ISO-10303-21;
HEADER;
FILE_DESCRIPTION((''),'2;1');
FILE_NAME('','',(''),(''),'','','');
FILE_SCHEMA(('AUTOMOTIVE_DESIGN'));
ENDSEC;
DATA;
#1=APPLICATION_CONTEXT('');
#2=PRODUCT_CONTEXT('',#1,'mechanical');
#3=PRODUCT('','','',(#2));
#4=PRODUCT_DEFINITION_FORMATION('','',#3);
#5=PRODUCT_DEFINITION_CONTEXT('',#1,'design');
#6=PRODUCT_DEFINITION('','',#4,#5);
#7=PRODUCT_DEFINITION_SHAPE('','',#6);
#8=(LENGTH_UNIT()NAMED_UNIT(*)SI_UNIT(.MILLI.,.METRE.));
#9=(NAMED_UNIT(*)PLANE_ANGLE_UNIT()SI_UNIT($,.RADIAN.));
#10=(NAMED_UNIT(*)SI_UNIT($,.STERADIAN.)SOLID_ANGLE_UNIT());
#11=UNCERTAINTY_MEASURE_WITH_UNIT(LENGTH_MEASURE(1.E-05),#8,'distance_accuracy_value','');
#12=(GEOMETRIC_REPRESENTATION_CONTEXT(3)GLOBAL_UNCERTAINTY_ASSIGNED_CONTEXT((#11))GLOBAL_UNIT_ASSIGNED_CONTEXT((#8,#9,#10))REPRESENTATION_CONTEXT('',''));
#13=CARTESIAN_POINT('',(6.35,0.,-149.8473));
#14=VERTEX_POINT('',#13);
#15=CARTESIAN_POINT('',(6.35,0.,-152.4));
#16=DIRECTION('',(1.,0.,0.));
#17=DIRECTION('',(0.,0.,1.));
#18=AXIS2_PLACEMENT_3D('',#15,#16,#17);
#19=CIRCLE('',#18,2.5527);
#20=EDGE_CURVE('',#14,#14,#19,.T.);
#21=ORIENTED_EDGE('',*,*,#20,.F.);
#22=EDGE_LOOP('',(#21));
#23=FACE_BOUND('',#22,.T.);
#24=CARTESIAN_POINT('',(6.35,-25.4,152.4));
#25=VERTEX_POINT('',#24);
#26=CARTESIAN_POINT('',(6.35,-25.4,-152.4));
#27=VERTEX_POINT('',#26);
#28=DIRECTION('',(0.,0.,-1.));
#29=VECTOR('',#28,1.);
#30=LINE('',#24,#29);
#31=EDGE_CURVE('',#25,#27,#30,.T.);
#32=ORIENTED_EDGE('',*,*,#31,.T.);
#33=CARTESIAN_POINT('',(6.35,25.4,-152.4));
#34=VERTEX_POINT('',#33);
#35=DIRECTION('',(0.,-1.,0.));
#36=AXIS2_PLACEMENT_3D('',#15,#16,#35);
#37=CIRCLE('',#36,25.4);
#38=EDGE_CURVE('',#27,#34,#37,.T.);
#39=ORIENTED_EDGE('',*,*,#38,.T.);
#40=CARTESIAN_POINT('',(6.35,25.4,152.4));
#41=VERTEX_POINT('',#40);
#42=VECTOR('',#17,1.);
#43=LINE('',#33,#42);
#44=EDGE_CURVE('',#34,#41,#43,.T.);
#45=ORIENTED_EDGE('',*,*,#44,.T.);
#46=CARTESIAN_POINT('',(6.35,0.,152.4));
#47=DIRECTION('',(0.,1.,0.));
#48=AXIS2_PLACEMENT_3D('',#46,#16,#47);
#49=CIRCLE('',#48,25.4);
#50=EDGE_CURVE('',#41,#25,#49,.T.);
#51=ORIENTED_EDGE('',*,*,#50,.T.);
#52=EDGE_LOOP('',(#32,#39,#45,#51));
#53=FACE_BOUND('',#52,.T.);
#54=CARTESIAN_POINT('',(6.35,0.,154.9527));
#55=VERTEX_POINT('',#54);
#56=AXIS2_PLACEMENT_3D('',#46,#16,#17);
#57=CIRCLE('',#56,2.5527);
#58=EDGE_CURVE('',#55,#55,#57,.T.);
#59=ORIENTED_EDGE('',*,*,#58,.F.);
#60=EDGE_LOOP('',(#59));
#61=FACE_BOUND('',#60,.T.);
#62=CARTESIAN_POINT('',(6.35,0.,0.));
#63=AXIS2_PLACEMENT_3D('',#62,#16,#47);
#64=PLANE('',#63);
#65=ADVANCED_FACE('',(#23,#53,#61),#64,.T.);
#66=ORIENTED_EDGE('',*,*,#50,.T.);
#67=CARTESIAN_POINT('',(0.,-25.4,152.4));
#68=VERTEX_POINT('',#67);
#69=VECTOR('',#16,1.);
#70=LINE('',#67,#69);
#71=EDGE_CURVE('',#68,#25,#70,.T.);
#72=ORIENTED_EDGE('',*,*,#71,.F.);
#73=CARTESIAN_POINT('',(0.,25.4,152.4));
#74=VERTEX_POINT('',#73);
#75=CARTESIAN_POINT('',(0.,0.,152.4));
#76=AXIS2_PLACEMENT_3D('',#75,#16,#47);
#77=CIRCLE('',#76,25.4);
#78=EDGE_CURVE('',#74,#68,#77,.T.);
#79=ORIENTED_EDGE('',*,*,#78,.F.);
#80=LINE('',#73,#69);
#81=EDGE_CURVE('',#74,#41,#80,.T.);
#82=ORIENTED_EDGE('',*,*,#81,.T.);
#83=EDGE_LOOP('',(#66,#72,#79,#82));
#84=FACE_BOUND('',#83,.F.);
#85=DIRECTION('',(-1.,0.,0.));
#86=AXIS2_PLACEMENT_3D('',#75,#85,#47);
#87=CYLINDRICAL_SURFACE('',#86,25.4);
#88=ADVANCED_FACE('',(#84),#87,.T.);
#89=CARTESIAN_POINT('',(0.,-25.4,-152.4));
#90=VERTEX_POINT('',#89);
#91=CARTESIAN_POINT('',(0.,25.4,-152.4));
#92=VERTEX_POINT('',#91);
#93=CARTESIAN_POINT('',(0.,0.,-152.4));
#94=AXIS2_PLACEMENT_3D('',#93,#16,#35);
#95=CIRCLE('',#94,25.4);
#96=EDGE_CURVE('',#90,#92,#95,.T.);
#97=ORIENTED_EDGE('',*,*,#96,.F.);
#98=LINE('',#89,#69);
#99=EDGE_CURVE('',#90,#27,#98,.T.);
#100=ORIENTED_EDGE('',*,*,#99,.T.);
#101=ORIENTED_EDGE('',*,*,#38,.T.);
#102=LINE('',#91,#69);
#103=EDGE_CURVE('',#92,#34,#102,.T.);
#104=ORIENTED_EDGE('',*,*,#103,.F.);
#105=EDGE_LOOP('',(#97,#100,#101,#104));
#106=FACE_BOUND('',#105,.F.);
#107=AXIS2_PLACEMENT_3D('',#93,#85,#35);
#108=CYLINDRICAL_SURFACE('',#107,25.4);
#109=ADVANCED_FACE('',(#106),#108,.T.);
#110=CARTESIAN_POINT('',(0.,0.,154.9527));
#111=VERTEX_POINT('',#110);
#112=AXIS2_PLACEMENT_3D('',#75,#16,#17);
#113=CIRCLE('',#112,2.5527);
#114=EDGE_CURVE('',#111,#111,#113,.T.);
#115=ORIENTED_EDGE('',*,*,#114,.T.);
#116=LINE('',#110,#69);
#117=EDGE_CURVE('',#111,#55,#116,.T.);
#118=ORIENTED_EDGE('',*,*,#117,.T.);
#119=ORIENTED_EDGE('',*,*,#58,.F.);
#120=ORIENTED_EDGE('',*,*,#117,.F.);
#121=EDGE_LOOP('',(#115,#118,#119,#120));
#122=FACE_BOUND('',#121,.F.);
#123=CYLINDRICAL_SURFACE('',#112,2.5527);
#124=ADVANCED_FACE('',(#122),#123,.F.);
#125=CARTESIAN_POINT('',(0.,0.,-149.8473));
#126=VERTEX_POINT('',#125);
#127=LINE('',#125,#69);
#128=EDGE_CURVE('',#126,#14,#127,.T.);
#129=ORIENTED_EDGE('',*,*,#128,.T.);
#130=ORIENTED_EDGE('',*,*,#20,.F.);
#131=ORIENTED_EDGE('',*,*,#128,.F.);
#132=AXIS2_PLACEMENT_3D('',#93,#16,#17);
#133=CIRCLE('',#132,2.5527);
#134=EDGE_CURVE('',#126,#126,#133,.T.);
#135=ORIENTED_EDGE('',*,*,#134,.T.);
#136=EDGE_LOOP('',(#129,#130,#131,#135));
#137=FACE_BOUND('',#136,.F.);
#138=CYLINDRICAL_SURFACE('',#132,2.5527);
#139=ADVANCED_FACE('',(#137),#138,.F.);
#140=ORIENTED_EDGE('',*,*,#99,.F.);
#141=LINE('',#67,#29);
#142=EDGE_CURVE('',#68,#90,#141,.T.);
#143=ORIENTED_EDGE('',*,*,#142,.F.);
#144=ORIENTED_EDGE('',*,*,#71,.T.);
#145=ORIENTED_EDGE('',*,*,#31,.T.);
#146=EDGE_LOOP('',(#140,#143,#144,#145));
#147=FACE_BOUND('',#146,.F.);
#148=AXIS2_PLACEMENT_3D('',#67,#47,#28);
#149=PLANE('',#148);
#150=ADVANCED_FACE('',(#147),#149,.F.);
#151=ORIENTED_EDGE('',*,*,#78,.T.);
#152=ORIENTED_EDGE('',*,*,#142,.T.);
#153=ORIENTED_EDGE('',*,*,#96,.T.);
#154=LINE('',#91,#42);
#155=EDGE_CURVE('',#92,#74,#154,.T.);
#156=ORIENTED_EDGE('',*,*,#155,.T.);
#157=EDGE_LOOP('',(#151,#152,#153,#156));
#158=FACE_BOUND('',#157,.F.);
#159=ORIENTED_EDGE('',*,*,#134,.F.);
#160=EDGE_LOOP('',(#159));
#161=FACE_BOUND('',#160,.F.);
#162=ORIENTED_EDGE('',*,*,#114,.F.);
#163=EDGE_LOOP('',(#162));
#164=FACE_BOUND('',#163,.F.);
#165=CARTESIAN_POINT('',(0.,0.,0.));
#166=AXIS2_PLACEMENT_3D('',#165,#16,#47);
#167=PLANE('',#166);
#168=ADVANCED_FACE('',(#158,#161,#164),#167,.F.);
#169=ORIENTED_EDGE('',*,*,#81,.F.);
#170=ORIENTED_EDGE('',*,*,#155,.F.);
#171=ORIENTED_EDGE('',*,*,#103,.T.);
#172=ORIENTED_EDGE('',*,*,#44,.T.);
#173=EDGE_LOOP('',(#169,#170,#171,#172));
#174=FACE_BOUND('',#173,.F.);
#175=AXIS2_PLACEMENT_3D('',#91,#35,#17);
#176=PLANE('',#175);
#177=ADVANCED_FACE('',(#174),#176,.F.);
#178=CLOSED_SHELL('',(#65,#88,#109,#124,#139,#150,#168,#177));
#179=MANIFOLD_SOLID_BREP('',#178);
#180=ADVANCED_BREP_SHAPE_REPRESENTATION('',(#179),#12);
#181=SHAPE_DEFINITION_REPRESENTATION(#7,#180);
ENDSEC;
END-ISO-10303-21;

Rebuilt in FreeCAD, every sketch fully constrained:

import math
import FreeCAD as App
import Part
import Sketcher
Q = App.Units.Quantity

doc = App.newDocument("Part")
body = doc.addObject("PartDesign::Body", "Body")

# Sketch on YZ plane
sketch1 = doc.addObject("Sketcher::SketchObject", "Sketch")
body.addObject(sketch1)
sketch1.AttachmentSupport = (doc.YZ_Plane, [""])
sketch1.MapMode = "FlatFace"
sketch1.addGeometry(Part.ArcOfCircle(Part.Circle(App.Vector(0, -152, 0), App.Vector(0, 0, 1), 25), math.radians(180), math.radians(360)), False)
sketch1.addGeometry(Part.LineSegment(App.Vector(25, -152, 0), App.Vector(25, 152, 0)), False)
sketch1.addGeometry(Part.ArcOfCircle(Part.Circle(App.Vector(0, 152, 0), App.Vector(0, 0, 1), 25), math.radians(0), math.radians(180)), False)
sketch1.addGeometry(Part.LineSegment(App.Vector(-25, 152, 0), App.Vector(-25, -152, 0)), False)
sketch1.addConstraint(Sketcher.Constraint("Tangent", 0, 2, 1, 1))
sketch1.addConstraint(Sketcher.Constraint("Tangent", 1, 2, 2, 1))
sketch1.addConstraint(Sketcher.Constraint("Tangent", 2, 2, 3, 1))
sketch1.addConstraint(Sketcher.Constraint("Tangent", 3, 2, 0, 1))
sketch1.addConstraint(Sketcher.Constraint("Vertical", 1))
sketch1.addConstraint(Sketcher.Constraint("Vertical", 3))
sketch1.addConstraint(Sketcher.Constraint("Symmetric", 0, 3, 2, 3, -1, 1))
sketch1.addConstraint(Sketcher.Constraint("Radius", 0, Q("1 in")))
sketch1.addConstraint(Sketcher.Constraint("DistanceY", 1, 1, 1, 2, Q("12 in")))
pad1 = doc.addObject("PartDesign::Pad", "Pad")
body.addObject(pad1)
pad1.Profile = sketch1
pad1.Length = Q("0.25 in")

# Sketch on YZ plane
sketch2 = doc.addObject("Sketcher::SketchObject", "Sketch001")
body.addObject(sketch2)
sketch2.AttachmentSupport = (doc.YZ_Plane, [""])
sketch2.MapMode = "FlatFace"
sketch2.addGeometry(Part.Circle(App.Vector(0, 152.4, 0), App.Vector(0, 0, 1), 2.6), False)
sketch2.addGeometry(Part.Circle(App.Vector(0, -152.4, 0), App.Vector(0, 0, 1), 2.6), False)
sketch2.addConstraint(Sketcher.Constraint("Equal", 0, 1))
sketch2.addConstraint(Sketcher.Constraint("Symmetric", 0, 3, 1, 3, -1, 1))
sketch2.addConstraint(Sketcher.Constraint("PointOnObject", 0, 3, -2))
sketch2.addConstraint(Sketcher.Constraint("Diameter", 0, Q("0.201 in")))
sketch2.addConstraint(Sketcher.Constraint("DistanceY", -1, 1, 0, 3, Q("6 in")))
doc.recompute()
hole = doc.addObject("PartDesign::Hole", "Hole")
body.addObject(hole)
hole.Profile = sketch2
hole.ThreadType = "None"
hole.Diameter = Q("0.201 in")
hole.DepthType = "ThroughAll"
hole.Reversed = True

doc.recompute()
